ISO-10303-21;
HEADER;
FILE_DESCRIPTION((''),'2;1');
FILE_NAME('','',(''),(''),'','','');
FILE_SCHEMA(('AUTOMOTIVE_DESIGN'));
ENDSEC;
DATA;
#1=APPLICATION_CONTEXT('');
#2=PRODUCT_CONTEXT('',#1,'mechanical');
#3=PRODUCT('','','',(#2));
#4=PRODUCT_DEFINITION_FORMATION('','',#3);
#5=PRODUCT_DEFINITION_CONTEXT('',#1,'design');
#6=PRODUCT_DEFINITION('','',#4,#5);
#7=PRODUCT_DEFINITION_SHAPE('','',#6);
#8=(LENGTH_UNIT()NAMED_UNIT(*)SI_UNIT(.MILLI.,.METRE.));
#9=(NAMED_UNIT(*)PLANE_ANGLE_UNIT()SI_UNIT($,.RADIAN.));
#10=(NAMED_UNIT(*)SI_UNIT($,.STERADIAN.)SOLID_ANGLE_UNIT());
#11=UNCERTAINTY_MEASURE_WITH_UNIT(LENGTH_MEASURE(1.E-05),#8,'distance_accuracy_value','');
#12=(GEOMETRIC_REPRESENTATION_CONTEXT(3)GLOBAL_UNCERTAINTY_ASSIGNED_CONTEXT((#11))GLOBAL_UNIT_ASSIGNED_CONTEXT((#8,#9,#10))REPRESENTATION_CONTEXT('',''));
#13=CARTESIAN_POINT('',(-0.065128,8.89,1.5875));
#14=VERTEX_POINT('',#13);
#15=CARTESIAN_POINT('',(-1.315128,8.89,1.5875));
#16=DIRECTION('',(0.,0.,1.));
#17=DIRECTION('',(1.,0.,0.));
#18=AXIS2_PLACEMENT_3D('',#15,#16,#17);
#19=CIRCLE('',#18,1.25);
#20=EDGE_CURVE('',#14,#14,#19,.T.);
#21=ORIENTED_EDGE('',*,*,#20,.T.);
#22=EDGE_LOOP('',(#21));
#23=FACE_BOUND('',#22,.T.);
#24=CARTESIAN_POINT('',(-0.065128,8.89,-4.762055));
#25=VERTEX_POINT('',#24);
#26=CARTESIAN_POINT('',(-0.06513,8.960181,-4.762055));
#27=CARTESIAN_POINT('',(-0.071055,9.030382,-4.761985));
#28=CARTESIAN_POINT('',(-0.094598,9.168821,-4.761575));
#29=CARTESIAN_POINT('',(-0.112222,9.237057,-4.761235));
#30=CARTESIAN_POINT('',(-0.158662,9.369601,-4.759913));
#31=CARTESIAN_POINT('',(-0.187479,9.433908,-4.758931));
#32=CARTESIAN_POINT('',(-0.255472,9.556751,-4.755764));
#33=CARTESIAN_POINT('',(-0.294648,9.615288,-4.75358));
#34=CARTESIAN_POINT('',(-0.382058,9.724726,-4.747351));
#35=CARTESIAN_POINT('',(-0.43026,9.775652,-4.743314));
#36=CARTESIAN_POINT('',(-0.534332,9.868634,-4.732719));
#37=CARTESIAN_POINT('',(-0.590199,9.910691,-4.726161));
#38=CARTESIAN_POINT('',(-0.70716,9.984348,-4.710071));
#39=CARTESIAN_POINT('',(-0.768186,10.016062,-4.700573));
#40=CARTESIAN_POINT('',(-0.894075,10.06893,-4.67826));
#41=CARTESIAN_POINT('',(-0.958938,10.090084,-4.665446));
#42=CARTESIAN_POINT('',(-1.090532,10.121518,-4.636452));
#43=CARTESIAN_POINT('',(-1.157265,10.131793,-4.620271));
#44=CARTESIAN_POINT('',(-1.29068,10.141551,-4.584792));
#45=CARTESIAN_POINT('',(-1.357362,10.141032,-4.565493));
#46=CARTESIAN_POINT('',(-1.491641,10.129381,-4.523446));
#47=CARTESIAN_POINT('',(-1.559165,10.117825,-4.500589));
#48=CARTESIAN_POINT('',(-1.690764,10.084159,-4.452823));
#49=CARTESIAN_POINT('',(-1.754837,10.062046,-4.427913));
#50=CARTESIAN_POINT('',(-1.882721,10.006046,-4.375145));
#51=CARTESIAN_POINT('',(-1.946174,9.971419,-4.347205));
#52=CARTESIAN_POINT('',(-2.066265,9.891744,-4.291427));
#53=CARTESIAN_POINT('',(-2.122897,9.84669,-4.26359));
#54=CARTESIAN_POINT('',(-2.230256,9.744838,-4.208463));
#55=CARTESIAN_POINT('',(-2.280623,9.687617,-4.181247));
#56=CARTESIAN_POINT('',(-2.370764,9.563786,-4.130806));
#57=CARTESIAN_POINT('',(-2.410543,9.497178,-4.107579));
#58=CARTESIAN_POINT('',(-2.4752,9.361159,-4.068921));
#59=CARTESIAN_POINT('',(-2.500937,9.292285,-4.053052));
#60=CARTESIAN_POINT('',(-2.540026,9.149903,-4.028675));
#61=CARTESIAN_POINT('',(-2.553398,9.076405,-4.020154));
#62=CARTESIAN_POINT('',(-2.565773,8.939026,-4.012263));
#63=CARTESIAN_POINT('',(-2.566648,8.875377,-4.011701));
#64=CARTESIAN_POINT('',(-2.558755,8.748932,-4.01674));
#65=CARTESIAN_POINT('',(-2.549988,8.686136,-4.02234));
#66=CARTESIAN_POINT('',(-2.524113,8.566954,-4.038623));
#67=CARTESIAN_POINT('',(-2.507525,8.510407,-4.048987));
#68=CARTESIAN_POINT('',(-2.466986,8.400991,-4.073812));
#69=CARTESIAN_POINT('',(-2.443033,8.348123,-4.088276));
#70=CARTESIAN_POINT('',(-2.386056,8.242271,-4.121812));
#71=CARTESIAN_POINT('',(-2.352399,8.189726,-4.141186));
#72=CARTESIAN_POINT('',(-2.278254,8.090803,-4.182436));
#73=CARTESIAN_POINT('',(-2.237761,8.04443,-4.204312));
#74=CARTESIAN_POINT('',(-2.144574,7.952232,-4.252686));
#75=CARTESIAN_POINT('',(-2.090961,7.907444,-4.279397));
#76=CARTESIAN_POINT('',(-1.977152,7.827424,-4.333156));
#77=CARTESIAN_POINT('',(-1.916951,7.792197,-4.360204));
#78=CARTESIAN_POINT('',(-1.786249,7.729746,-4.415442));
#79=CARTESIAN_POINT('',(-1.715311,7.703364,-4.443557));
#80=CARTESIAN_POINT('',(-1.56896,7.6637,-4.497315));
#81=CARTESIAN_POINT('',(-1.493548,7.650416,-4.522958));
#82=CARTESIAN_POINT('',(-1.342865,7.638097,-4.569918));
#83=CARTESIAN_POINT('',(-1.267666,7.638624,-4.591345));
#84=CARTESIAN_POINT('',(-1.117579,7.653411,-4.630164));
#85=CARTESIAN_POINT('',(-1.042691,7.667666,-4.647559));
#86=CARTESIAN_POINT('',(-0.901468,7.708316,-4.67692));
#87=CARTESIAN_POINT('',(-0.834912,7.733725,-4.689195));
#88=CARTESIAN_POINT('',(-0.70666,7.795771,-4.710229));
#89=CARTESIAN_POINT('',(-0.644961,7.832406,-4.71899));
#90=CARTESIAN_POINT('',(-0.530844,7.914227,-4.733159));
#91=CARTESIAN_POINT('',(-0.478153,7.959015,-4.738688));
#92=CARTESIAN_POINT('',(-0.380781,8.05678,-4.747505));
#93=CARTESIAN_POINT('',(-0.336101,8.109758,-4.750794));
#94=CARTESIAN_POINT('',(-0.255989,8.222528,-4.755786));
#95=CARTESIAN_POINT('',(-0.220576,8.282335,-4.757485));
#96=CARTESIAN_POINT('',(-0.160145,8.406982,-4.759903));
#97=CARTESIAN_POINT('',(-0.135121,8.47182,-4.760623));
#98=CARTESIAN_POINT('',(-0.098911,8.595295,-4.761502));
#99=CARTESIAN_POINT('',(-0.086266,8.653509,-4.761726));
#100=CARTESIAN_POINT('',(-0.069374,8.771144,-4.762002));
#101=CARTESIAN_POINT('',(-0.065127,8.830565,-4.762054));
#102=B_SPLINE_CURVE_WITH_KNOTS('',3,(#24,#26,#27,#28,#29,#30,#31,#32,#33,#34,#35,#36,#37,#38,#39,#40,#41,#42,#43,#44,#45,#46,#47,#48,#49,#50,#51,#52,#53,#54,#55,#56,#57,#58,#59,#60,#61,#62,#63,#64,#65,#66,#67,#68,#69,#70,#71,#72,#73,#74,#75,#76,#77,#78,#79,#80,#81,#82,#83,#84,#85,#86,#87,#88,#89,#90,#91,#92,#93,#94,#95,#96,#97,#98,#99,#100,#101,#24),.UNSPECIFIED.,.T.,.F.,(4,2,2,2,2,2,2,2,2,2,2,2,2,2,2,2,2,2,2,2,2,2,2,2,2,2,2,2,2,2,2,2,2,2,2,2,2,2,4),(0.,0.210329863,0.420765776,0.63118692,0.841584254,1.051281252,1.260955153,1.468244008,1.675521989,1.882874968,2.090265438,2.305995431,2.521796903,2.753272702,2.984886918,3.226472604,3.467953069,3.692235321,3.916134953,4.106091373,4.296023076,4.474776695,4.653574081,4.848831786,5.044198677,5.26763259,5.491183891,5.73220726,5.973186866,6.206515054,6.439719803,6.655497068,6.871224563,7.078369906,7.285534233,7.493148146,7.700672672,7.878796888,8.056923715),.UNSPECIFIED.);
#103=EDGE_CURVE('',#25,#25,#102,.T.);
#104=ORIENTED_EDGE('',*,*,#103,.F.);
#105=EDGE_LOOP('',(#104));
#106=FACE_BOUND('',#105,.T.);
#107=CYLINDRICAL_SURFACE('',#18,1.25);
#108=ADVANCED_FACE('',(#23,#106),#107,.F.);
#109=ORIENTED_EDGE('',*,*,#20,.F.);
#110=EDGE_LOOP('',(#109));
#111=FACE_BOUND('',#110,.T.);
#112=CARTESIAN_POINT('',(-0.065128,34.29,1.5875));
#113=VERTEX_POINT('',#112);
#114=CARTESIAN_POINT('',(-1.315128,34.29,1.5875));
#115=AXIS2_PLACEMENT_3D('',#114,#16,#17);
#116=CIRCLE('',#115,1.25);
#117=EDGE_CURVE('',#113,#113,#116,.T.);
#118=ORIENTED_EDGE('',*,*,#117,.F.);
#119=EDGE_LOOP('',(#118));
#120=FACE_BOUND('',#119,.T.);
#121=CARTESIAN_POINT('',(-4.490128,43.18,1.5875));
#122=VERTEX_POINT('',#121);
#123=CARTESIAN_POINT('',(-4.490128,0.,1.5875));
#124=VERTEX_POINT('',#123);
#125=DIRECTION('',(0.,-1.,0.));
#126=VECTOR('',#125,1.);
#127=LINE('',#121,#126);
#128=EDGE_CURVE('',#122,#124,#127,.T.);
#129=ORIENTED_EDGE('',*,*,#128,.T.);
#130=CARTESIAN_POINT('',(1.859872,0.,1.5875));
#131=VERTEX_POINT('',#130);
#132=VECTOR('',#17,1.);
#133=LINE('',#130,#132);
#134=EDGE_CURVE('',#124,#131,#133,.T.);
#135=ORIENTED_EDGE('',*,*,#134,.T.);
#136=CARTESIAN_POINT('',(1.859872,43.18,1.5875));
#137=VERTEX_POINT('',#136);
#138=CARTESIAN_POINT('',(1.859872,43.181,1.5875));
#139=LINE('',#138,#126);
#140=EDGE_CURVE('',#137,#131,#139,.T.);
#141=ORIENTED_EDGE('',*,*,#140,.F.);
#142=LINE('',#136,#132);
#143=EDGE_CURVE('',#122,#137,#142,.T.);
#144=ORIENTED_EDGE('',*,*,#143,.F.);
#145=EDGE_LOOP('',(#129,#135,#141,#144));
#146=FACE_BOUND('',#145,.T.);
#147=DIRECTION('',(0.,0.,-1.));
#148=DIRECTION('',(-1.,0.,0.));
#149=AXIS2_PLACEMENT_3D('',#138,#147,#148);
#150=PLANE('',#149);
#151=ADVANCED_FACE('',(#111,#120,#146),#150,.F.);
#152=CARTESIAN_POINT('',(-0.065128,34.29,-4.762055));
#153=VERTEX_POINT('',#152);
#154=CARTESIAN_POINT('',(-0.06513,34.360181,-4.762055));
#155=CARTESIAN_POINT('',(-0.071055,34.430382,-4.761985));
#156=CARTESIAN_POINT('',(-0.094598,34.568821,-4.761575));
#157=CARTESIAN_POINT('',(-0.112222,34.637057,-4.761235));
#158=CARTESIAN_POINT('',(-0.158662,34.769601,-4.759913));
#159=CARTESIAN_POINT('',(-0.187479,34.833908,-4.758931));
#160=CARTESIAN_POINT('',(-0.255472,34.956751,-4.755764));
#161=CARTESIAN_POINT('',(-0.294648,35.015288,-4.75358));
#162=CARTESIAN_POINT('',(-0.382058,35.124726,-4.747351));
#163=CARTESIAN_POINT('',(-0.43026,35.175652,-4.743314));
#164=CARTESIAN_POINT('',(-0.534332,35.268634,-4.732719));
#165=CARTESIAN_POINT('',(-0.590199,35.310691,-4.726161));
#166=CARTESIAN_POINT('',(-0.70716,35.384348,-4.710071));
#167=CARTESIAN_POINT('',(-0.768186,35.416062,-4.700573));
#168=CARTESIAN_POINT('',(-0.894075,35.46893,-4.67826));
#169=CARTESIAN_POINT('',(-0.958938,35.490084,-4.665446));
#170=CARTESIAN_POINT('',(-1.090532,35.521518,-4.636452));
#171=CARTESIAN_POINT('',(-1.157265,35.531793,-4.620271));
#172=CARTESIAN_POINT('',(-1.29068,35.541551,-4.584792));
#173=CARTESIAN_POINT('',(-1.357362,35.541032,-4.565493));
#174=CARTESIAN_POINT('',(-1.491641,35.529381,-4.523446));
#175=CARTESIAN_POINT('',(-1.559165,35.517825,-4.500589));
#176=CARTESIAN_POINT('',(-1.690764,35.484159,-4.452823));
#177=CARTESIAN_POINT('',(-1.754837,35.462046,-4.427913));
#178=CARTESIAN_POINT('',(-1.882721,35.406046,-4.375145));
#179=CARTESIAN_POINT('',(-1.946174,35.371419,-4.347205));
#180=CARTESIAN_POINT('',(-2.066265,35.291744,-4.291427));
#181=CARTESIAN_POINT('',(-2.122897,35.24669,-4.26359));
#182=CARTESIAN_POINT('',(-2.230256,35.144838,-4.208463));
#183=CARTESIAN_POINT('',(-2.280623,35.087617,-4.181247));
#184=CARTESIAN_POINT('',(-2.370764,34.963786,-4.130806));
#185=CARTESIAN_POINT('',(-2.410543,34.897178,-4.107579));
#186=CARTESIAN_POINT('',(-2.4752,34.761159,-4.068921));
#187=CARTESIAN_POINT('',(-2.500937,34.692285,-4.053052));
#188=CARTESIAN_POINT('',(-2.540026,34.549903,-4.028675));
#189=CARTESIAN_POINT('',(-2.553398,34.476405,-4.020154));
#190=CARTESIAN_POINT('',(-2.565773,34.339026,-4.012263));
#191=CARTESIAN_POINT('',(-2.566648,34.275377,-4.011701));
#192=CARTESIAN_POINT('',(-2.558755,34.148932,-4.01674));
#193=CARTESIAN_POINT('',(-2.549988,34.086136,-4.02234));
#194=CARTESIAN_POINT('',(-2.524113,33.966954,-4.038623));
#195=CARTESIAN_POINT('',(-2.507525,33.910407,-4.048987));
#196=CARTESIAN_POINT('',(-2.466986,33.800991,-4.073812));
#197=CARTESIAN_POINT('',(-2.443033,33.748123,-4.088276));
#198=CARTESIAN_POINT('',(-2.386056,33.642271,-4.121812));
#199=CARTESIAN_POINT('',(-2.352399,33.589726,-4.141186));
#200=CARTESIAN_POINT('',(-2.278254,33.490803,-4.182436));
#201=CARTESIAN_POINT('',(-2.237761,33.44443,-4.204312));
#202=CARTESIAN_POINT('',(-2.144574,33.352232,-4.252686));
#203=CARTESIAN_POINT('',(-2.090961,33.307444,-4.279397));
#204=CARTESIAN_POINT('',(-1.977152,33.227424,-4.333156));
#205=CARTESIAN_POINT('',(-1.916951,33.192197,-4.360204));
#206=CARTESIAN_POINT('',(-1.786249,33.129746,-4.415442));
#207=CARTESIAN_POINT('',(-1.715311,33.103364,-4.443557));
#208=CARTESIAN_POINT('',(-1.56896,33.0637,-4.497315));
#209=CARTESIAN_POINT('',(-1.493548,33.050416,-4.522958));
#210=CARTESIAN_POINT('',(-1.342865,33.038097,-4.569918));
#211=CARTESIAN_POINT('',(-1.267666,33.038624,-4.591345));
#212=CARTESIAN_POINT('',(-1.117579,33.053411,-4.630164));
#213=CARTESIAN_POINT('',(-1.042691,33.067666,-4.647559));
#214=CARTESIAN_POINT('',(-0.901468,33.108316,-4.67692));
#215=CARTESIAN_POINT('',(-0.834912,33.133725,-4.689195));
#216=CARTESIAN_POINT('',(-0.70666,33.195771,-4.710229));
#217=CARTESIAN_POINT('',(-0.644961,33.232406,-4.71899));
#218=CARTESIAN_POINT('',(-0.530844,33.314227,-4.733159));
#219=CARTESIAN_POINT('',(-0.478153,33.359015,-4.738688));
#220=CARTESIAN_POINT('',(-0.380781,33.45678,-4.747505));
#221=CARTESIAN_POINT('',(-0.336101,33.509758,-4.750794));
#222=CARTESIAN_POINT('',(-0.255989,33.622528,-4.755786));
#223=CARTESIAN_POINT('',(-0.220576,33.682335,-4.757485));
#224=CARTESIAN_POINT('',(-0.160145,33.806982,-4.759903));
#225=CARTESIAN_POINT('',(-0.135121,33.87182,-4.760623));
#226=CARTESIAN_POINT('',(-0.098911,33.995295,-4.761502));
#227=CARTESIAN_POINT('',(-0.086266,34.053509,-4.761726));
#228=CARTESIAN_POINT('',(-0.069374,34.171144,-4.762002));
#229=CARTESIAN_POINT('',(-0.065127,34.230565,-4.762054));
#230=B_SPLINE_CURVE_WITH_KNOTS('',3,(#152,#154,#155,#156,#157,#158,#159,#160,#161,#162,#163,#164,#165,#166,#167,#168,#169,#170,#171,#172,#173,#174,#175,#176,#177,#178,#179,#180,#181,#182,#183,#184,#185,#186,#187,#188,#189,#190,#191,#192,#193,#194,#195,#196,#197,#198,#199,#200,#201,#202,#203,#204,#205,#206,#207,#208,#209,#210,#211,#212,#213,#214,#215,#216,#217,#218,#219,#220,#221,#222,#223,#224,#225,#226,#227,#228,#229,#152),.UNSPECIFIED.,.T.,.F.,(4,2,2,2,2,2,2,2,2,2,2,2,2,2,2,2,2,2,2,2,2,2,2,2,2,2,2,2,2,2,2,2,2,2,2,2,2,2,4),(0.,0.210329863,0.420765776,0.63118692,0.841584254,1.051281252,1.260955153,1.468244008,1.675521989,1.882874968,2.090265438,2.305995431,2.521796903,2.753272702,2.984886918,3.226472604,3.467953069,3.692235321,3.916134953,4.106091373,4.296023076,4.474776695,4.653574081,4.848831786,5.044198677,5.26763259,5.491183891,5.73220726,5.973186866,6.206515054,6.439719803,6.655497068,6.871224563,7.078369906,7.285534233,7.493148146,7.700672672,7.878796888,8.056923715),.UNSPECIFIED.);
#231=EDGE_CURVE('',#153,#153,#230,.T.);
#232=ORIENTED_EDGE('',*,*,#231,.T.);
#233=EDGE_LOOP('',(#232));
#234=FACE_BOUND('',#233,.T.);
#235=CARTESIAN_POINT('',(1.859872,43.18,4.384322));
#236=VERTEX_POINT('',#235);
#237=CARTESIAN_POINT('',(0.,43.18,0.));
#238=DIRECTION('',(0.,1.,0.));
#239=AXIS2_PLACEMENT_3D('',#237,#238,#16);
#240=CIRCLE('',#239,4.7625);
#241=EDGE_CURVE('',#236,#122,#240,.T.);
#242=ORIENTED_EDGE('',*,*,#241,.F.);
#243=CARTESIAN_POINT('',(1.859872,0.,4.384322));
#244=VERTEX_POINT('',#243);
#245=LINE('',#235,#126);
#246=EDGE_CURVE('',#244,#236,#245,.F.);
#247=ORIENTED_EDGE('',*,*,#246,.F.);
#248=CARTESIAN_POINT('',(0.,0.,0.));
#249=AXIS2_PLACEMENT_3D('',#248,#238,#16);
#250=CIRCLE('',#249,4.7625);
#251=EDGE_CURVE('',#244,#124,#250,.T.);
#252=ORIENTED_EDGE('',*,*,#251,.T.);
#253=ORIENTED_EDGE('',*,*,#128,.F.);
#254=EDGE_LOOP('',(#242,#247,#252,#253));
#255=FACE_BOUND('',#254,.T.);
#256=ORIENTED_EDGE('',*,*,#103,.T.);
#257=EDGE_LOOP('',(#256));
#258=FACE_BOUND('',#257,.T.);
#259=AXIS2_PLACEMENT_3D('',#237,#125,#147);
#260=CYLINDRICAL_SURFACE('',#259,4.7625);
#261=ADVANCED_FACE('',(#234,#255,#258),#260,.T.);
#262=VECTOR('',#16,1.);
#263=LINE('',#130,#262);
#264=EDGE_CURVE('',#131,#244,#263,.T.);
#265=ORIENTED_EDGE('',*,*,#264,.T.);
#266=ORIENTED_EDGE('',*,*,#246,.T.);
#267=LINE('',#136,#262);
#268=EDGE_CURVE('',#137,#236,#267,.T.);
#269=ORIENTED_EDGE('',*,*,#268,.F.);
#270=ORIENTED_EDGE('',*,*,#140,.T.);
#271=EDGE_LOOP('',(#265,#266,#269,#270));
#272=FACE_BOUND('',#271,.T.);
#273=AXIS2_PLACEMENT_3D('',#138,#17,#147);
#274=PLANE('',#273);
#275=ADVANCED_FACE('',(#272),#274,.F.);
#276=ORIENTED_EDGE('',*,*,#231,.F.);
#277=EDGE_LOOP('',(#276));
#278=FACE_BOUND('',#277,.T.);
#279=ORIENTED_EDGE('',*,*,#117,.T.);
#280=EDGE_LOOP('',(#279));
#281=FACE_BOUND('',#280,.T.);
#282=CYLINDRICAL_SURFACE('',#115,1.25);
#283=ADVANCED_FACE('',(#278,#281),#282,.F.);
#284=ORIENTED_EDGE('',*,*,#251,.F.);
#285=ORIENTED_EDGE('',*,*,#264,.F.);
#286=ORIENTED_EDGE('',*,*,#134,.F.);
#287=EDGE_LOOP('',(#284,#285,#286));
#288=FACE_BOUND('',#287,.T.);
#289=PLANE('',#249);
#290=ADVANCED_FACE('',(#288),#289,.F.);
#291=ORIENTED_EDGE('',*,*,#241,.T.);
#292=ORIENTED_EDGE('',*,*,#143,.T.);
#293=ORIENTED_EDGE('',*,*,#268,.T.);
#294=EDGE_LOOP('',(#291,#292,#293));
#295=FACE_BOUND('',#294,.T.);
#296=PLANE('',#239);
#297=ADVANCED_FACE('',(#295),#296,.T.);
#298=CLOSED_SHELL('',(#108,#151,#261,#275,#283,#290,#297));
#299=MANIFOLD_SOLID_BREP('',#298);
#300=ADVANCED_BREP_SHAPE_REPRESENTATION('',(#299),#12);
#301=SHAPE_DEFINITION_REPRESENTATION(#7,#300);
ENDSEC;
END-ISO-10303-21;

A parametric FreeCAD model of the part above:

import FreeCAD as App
import Part
import Sketcher
from FreeCAD import Vector
Q = App.Units.Quantity


def add_polygon(sketch, points):
    """Adds a closed chain of lines whose ends are joined by coincident constraints."""
    first, n = sketch.GeometryCount, len(points)
    for a, b in zip(points, points[1:] + points[:1]):
        sketch.addGeometry(Part.LineSegment(App.Vector(*a, 0), App.Vector(*b, 0)), False)
    for i in range(n):
        sketch.addConstraint(Sketcher.Constraint("Coincident", first + i, 2, first + (i + 1) % n, 1))

doc = App.newDocument("Part")
body = doc.addObject("PartDesign::Body", "Body")

# Sketch on XZ plane
sketch1 = doc.addObject("Sketcher::SketchObject", "Sketch")
body.addObject(sketch1)
sketch1.AttachmentSupport = (doc.XZ_Plane, [""])
sketch1.MapMode = "FlatFace"
sketch1.addGeometry(Part.Circle(Vector(0, 0, 0), Vector(0, 0, 1), 4.7625), False)
sketch1.addConstraint(Sketcher.Constraint("Coincident", 0, 3, -1, 1))
sketch1.addConstraint(Sketcher.Constraint("Diameter", 0, Q("0.375 in")))
pad1 = doc.addObject("PartDesign::Pad", "Pad")
body.addObject(pad1)
pad1.Profile = sketch1
pad1.Length = Q("1.7 in")
pad1.Reversed = True

# Sketch on XZ plane
sketch2 = doc.addObject("Sketcher::SketchObject", "Sketch001")
body.addObject(sketch2)
sketch2.AttachmentSupport = (doc.XZ_Plane, [""])
sketch2.MapMode = "FlatFace"
add_polygon(sketch2, [(-4.490128, 4.7625), (-4.490128, 1.5875), (1.859872, 1.5875), (1.859872, 4.7625)])  # lines 0-3
sketch2.addConstraint(Sketcher.Constraint("Vertical", 0))
sketch2.addConstraint(Sketcher.Constraint("Horizontal", 1))
sketch2.addConstraint(Sketcher.Constraint("Vertical", 2))
sketch2.addConstraint(Sketcher.Constraint("Horizontal", 3))
sketch2.addConstraint(Sketcher.Constraint("DistanceX", 1, 1, 1, 2, Q("0.25 in")))
sketch2.addConstraint(Sketcher.Constraint("DistanceY", 0, 2, 0, 1, Q("0.125 in")))
sketch2.addConstraint(Sketcher.Constraint("DistanceY", -1, 1, 0, 2, Q("0.0625 in")))
sketch2.addConstraint(Sketcher.Constraint("DistanceX", 0, 2, -1, 1, Q("4.490128 mm")))
pocket1 = doc.addObject("PartDesign::Pocket", "Pocket")
body.addObject(pocket1)
pocket1.Profile = sketch2
pocket1.Type = "UpToFirst"

# Sketch on XY plane
sketch3 = doc.addObject("Sketcher::SketchObject", "Sketch002")
body.addObject(sketch3)
sketch3.AttachmentSupport = (doc.XY_Plane, [""])
sketch3.MapMode = "FlatFace"
sketch3.AttachmentOffset = App.Placement(Vector(0, 0, 0.0625 * 25.4), App.Rotation())
sketch3.addGeometry(Part.Circle(Vector(-1.315128, 34.29, 0), Vector(0, 0, 1), 1.25), False)
sketch3.addGeometry(Part.Circle(Vector(-1.315128, 8.89, 0), Vector(0, 0, 1), 1.25), False)
sketch3.addConstraint(Sketcher.Constraint("Equal", 0, 1))
sketch3.addConstraint(Sketcher.Constraint("Vertical", 0, 3, 1, 3))
sketch3.addConstraint(Sketcher.Constraint("DistanceY", 1, 3, 0, 3, Q("1 in")))
sketch3.addConstraint(Sketcher.Constraint("Diameter", 0, Q("2.5 mm")))
sketch3.addConstraint(Sketcher.Constraint("DistanceY", -1, 1, 0, 3, Q("1.35 in")))
sketch3.addConstraint(Sketcher.Constraint("DistanceX", 0, 3, -1, 1, Q("1.315128 mm")))
doc.recompute()
hole = doc.addObject("PartDesign::Hole", "Hole")
body.addObject(hole)
hole.Profile = sketch3
hole.ThreadType = "None"
hole.Diameter = 2.5
hole.DepthType = "ThroughAll"

doc.recompute()
